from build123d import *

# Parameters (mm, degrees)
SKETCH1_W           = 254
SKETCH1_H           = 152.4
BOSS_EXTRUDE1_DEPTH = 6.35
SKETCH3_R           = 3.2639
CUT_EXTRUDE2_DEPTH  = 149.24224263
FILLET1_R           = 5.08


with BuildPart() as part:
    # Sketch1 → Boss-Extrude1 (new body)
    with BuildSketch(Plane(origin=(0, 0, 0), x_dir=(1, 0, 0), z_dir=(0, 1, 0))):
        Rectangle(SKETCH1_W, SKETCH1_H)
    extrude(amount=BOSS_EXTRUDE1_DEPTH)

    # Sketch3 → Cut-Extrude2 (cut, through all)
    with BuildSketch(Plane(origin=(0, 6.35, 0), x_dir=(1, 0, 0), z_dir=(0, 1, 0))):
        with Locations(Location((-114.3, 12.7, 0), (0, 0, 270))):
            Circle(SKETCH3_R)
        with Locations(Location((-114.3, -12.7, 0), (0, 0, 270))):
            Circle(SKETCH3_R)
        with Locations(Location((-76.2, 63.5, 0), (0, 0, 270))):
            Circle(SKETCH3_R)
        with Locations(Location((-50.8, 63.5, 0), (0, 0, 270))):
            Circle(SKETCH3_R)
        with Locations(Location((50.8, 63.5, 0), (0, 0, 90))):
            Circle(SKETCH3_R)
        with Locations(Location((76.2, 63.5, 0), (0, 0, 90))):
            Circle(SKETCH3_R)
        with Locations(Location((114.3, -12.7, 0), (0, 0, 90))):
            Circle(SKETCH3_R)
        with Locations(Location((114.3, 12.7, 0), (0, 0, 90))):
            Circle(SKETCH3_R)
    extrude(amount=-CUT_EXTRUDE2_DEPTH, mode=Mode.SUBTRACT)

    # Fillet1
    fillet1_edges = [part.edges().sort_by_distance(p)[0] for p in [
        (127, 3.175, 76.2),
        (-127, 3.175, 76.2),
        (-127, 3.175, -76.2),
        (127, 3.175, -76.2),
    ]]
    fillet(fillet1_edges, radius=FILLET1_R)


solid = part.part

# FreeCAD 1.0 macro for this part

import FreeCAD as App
import Part
import Sketcher
Q = App.Units.Quantity


def edges_at(feature, points):
    """Names of the edges that pass closest to the given points."""
    edges = feature.Shape.Edges
    near = lambda p: min(range(len(edges)), key=lambda i: edges[i].distToShape(Part.Vertex(*p))[0])
    return sorted({f"Edge{near(p) + 1}" for p in points})


def add_polygon(sketch, points):
    """Adds a closed chain of lines whose ends are joined by coincident constraints."""
    first, n = sketch.GeometryCount, len(points)
    for a, b in zip(points, points[1:] + points[:1]):
        sketch.addGeometry(Part.LineSegment(App.Vector(*a, 0), App.Vector(*b, 0)), False)
    for i in range(n):
        sketch.addConstraint(Sketcher.Constraint("Coincident", first + i, 2, first + (i + 1) % n, 1))

doc = App.newDocument("Part")
body = doc.addObject("PartDesign::Body", "Body")

sketch1 = body.newObject("Sketcher::SketchObject", "Sketch")
sketch1.AttachmentSupport = (doc.getObject("XZ_Plane"), [""])
sketch1.MapMode = "FlatFace"
add_polygon(sketch1, [(-127, -76), (-127, 76), (127, 76), (127, -76)])
sketch1.addConstraint([
    Sketcher.Constraint("Vertical", 0),
    Sketcher.Constraint("Horizontal", 1),
    Sketcher.Constraint("Vertical", 2),
    Sketcher.Constraint("Horizontal", 3),
    Sketcher.Constraint("Symmetric", 0, 2, 2, 2, -1, 1),
    Sketcher.Constraint("DistanceX", 1, 1, 1, 2, Q("10 in")),
    Sketcher.Constraint("DistanceY", 0, 1, 0, 2, Q("6 in")),
])
pad1 = body.newObject("PartDesign::Pad", "Pad")
pad1.Profile = sketch1
pad1.Length = Q("0.25 in")
pad1.Reversed = True

sketch2 = body.newObject("Sketcher::SketchObject", "Sketch001")
sketch2.AttachmentSupport = (doc.getObject("XZ_Plane"), [""])
sketch2.MapMode = "FlatFace"
sketch2.AttachmentOffset = App.Placement(App.Vector(0, 0, -0.25 * 25.4), App.Rotation())
sketch2.addGeometry([
    Part.Circle(App.Vector(-114.3, -12.7, 0), App.Vector(0, 0, 1), 3.3),
    Part.Circle(App.Vector(-114.3, 12.7, 0), App.Vector(0, 0, 1), 3.3),
    Part.Circle(App.Vector(-76.2, -63.5, 0), App.Vector(0, 0, 1), 3.3),
    Part.Circle(App.Vector(-50.8, -63.5, 0), App.Vector(0, 0, 1), 3.3),
    Part.Circle(App.Vector(50.8, -63.5, 0), App.Vector(0, 0, 1), 3.3),
    Part.Circle(App.Vector(76.2, -63.5, 0), App.Vector(0, 0, 1), 3.3),
    Part.Circle(App.Vector(114.3, 12.7, 0), App.Vector(0, 0, 1), 3.3),
    Part.Circle(App.Vector(114.3, -12.7, 0), App.Vector(0, 0, 1), 3.3),
], False)
sketch2.addConstraint([
    Sketcher.Constraint("Equal", 0, 1),
    Sketcher.Constraint("Equal", 1, 2),
    Sketcher.Constraint("Equal", 2, 3),
    Sketcher.Constraint("Equal", 3, 4),
    Sketcher.Constraint("Equal", 4, 5),
    Sketcher.Constraint("Equal", 5, 6),
    Sketcher.Constraint("Equal", 6, 7),
    Sketcher.Constraint("Symmetric", 0, 3, 6, 3, -1, 1),
    Sketcher.Constraint("Symmetric", 1, 3, 7, 3, -1, 1),
    Sketcher.Constraint("Symmetric", 3, 3, 4, 3, -2),
    Sketcher.Constraint("Symmetric", 2, 3, 5, 3, -2),
    Sketcher.Constraint("Symmetric", 1, 3, 6, 3, -2),
    Sketcher.Constraint("Horizontal", 2, 3, 3, 3),
    Sketcher.Constraint("Diameter", 0, Q("0.257 in")),
    Sketcher.Constraint("DistanceX", 2, 3, -1, 1, Q("3 in")),
    Sketcher.Constraint("DistanceX", 3, 3, -1, 1, Q("2 in")),
    Sketcher.Constraint("DistanceY", 0, 3, 1, 3, Q("1 in")),
    Sketcher.Constraint("DistanceY", 2, 3, 0, 3, Q("2 in")),
    Sketcher.Constraint("DistanceX", 1, 3, 6, 3, Q("9 in")),
])
pocket1 = body.newObject("PartDesign::Pocket", "Pocket")
pocket1.Profile = sketch2
pocket1.Type = "ThroughAll"
pocket1.Reversed = True
doc.recompute()

fillet = body.newObject("PartDesign::Fillet", "Fillet")
fillet.Base = (pocket1, edges_at(pocket1, [
    (127, 3.175, 76.2),
    (-127, 3.175, 76.2),
    (-127, 3.175, -76.2),
    (127, 3.175, -76.2),
]))
fillet.Radius = Q("0.2 in")

doc.recompute()
